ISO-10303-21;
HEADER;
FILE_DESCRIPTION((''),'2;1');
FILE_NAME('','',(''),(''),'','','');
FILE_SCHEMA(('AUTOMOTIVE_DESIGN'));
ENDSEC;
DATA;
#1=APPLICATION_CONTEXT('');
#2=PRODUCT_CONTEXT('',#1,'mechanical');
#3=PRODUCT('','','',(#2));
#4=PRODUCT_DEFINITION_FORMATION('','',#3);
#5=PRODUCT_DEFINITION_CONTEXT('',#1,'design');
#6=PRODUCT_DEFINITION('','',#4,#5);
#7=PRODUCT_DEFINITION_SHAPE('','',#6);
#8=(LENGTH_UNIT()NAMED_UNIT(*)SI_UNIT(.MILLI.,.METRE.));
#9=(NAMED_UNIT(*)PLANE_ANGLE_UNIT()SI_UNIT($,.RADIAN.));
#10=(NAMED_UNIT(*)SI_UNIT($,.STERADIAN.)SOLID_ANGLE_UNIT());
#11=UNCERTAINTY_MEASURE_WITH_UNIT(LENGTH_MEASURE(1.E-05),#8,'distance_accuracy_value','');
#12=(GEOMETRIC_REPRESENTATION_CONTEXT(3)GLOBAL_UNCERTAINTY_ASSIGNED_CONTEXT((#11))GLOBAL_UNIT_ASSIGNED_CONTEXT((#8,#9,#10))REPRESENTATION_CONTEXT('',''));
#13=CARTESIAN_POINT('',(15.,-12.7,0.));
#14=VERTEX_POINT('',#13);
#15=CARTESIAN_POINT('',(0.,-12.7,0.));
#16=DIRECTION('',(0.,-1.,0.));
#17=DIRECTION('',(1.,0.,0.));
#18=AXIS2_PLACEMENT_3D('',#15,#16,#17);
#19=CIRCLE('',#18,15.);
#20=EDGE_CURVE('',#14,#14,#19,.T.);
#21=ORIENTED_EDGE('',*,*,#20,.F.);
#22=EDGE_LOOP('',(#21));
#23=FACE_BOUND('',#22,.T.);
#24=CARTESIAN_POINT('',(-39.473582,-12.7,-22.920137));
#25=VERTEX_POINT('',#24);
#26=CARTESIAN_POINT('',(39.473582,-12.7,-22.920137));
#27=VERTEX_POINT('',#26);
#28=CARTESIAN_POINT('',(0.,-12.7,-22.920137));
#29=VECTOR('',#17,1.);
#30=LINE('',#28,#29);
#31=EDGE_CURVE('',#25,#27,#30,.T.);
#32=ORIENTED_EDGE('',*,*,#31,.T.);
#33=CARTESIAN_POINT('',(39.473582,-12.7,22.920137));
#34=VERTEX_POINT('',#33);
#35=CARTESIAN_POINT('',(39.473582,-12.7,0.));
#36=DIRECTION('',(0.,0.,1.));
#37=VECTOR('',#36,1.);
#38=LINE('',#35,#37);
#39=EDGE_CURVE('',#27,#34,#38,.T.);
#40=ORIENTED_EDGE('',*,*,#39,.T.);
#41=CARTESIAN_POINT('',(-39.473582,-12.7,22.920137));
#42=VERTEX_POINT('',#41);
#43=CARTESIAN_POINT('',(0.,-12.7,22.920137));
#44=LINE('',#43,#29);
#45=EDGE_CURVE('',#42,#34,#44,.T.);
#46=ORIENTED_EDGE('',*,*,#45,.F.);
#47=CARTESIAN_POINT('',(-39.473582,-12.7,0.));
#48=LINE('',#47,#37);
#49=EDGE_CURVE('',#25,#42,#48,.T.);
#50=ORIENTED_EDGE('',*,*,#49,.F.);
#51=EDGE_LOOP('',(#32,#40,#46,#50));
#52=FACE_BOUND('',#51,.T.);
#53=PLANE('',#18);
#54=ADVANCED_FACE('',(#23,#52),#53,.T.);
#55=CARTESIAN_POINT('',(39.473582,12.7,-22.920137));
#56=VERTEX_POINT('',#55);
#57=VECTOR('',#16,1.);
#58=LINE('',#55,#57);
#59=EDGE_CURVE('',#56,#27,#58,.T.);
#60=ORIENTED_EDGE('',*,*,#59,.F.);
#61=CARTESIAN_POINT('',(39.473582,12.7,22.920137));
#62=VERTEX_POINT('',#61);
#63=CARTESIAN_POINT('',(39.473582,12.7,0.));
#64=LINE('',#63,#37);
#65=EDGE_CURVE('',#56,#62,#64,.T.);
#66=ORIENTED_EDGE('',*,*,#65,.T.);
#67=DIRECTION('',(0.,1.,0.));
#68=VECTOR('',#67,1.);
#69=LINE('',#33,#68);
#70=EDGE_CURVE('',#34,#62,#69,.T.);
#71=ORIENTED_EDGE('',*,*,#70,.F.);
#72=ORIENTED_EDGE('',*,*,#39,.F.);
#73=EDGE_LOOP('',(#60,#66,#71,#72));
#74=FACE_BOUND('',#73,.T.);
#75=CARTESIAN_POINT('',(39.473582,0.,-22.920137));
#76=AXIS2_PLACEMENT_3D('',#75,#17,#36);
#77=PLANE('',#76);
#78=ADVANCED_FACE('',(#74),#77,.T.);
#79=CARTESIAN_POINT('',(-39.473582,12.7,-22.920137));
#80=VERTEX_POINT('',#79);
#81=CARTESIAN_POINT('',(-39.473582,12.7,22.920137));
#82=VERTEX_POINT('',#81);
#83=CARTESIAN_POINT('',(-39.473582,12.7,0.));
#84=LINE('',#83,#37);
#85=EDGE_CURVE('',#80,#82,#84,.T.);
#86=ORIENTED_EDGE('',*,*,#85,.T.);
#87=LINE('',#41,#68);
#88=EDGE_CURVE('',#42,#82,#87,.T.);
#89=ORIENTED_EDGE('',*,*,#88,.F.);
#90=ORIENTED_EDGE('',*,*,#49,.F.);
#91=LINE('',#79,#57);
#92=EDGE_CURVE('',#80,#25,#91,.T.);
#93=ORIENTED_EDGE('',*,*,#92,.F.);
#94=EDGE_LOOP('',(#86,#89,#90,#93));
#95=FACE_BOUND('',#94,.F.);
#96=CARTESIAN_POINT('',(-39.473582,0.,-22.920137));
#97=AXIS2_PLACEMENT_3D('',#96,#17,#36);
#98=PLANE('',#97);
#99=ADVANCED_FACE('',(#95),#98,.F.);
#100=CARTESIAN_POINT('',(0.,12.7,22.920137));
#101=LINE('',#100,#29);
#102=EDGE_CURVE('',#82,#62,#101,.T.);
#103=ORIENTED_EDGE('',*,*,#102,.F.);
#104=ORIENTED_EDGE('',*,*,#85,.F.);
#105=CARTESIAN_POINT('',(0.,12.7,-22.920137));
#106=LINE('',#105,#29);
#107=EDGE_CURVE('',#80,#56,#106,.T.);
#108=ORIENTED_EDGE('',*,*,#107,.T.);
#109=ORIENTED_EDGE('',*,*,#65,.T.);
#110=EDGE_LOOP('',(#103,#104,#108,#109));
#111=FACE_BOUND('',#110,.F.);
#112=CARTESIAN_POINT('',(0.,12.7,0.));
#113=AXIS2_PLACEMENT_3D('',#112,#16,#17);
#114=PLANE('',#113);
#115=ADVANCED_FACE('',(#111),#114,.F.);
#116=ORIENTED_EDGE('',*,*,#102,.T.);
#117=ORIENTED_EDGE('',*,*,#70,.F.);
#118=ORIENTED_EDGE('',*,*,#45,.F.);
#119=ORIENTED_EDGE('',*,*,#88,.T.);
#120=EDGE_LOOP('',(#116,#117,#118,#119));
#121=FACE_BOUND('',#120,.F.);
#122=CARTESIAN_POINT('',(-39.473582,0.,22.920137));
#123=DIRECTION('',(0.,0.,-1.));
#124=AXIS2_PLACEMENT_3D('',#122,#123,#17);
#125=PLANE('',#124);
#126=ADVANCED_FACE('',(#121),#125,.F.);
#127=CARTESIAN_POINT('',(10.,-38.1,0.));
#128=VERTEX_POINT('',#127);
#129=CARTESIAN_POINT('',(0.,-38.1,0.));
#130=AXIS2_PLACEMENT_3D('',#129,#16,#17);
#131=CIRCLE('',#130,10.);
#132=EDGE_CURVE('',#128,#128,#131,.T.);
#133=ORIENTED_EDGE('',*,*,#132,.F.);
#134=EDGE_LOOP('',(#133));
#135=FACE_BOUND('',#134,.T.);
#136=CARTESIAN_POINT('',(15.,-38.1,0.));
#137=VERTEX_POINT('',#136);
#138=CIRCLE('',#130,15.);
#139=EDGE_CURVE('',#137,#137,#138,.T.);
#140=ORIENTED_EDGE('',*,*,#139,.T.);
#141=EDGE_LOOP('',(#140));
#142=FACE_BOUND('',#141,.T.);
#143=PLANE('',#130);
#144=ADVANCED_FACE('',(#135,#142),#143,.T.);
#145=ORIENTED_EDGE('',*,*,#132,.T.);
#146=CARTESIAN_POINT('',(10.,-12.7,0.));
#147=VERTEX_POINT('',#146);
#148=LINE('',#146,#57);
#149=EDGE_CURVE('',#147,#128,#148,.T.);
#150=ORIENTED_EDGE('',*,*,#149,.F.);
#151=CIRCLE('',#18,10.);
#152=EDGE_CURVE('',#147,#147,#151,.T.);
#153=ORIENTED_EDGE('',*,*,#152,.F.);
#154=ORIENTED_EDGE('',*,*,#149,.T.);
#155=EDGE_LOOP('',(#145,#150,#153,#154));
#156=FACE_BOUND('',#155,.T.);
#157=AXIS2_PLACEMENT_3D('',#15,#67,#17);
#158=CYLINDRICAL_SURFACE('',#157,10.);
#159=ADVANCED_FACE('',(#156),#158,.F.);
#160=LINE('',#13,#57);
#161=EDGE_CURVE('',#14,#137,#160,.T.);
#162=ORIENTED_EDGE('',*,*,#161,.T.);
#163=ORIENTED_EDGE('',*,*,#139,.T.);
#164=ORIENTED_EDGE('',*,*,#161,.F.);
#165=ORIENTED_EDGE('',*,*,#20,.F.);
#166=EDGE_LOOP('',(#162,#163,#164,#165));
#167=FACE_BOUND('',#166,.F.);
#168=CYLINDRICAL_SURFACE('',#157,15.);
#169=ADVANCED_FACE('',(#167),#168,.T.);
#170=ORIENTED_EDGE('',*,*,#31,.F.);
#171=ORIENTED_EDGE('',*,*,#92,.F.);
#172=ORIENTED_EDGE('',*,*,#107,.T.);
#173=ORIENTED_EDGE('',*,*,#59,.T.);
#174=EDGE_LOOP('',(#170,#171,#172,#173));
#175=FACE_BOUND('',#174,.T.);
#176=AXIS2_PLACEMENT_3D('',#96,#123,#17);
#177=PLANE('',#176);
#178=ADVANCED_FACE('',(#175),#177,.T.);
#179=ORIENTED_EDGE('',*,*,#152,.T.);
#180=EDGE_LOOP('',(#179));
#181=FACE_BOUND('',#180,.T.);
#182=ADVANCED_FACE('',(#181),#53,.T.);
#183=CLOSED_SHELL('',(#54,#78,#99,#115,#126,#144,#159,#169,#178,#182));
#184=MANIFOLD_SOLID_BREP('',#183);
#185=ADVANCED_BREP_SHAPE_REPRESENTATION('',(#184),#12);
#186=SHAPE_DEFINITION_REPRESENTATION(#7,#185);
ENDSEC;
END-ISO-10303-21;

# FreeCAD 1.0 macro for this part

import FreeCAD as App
import Part
import Sketcher
from FreeCAD import Vector

doc = App.newDocument("Part")
body = doc.addObject("PartDesign::Body", "Body")

sketch1 = doc.addObject("Sketcher::SketchObject", "Sketch")
body.addObject(sketch1)
sketch1.AttachmentSupport = (doc.XZ_Plane, [""])
sketch1.MapMode = "FlatFace"
sketch1.addGeometry([
    Part.LineSegment(Vector(-39, 23, 0), Vector(-39, -23, 0)),
    Part.LineSegment(Vector(-39, -23, 0), Vector(39, -23, 0)),
    Part.LineSegment(Vector(39, -23, 0), Vector(39, 23, 0)),
    Part.LineSegment(Vector(39, 23, 0), Vector(-39, 23, 0)),
], False)
sketch1.addConstraint([
    Sketcher.Constraint("Coincident", 0, 2, 1, 1),
    Sketcher.Constraint("Coincident", 1, 2, 2, 1),
    Sketcher.Constraint("Coincident", 2, 2, 3, 1),
    Sketcher.Constraint("Coincident", 3, 2, 0, 1),
    Sketcher.Constraint("Vertical", 0),
    Sketcher.Constraint("Horizontal", 1),
    Sketcher.Constraint("Vertical", 2),
    Sketcher.Constraint("Horizontal", 3),
    Sketcher.Constraint("Symmetric", 0, 2, 2, 2, -1, 1),
    Sketcher.Constraint("DistanceX", 1, 1, 1, 2, 78.947164),
    Sketcher.Constraint("DistanceY", 0, 2, 0, 1, 45.840274),
])
pad1 = doc.addObject("PartDesign::Pad", "Pad")
body.addObject(pad1)
pad1.Profile = sketch1
pad1.Length = 25.4
pad1.Midplane = True

sketch2 = doc.addObject("Sketcher::SketchObject", "Sketch001")
body.addObject(sketch2)
sketch2.AttachmentSupport = (doc.XZ_Plane, [""])
sketch2.MapMode = "FlatFace"
sketch2.AttachmentOffset = App.Placement(Vector(0, 0, 12.7), App.Rotation())
sketch2.addGeometry([
    Part.Circle(Vector(0, 0, 0), Vector(0, 0, 1), 15),
    Part.Circle(Vector(0, 0, 0), Vector(0, 0, 1), 10),
], False)
sketch2.addConstraint([
    Sketcher.Constraint("Coincident", 0, 3, -1, 1),
    Sketcher.Constraint("Coincident", 1, 3, -1, 1),
    Sketcher.Constraint("Diameter", 0, 30.0),
    Sketcher.Constraint("Diameter", 1, 20.0),
])
pad2 = doc.addObject("PartDesign::Pad", "Pad001")
body.addObject(pad2)
pad2.Profile = sketch2
pad2.Length = 25.4

doc.recompute()
